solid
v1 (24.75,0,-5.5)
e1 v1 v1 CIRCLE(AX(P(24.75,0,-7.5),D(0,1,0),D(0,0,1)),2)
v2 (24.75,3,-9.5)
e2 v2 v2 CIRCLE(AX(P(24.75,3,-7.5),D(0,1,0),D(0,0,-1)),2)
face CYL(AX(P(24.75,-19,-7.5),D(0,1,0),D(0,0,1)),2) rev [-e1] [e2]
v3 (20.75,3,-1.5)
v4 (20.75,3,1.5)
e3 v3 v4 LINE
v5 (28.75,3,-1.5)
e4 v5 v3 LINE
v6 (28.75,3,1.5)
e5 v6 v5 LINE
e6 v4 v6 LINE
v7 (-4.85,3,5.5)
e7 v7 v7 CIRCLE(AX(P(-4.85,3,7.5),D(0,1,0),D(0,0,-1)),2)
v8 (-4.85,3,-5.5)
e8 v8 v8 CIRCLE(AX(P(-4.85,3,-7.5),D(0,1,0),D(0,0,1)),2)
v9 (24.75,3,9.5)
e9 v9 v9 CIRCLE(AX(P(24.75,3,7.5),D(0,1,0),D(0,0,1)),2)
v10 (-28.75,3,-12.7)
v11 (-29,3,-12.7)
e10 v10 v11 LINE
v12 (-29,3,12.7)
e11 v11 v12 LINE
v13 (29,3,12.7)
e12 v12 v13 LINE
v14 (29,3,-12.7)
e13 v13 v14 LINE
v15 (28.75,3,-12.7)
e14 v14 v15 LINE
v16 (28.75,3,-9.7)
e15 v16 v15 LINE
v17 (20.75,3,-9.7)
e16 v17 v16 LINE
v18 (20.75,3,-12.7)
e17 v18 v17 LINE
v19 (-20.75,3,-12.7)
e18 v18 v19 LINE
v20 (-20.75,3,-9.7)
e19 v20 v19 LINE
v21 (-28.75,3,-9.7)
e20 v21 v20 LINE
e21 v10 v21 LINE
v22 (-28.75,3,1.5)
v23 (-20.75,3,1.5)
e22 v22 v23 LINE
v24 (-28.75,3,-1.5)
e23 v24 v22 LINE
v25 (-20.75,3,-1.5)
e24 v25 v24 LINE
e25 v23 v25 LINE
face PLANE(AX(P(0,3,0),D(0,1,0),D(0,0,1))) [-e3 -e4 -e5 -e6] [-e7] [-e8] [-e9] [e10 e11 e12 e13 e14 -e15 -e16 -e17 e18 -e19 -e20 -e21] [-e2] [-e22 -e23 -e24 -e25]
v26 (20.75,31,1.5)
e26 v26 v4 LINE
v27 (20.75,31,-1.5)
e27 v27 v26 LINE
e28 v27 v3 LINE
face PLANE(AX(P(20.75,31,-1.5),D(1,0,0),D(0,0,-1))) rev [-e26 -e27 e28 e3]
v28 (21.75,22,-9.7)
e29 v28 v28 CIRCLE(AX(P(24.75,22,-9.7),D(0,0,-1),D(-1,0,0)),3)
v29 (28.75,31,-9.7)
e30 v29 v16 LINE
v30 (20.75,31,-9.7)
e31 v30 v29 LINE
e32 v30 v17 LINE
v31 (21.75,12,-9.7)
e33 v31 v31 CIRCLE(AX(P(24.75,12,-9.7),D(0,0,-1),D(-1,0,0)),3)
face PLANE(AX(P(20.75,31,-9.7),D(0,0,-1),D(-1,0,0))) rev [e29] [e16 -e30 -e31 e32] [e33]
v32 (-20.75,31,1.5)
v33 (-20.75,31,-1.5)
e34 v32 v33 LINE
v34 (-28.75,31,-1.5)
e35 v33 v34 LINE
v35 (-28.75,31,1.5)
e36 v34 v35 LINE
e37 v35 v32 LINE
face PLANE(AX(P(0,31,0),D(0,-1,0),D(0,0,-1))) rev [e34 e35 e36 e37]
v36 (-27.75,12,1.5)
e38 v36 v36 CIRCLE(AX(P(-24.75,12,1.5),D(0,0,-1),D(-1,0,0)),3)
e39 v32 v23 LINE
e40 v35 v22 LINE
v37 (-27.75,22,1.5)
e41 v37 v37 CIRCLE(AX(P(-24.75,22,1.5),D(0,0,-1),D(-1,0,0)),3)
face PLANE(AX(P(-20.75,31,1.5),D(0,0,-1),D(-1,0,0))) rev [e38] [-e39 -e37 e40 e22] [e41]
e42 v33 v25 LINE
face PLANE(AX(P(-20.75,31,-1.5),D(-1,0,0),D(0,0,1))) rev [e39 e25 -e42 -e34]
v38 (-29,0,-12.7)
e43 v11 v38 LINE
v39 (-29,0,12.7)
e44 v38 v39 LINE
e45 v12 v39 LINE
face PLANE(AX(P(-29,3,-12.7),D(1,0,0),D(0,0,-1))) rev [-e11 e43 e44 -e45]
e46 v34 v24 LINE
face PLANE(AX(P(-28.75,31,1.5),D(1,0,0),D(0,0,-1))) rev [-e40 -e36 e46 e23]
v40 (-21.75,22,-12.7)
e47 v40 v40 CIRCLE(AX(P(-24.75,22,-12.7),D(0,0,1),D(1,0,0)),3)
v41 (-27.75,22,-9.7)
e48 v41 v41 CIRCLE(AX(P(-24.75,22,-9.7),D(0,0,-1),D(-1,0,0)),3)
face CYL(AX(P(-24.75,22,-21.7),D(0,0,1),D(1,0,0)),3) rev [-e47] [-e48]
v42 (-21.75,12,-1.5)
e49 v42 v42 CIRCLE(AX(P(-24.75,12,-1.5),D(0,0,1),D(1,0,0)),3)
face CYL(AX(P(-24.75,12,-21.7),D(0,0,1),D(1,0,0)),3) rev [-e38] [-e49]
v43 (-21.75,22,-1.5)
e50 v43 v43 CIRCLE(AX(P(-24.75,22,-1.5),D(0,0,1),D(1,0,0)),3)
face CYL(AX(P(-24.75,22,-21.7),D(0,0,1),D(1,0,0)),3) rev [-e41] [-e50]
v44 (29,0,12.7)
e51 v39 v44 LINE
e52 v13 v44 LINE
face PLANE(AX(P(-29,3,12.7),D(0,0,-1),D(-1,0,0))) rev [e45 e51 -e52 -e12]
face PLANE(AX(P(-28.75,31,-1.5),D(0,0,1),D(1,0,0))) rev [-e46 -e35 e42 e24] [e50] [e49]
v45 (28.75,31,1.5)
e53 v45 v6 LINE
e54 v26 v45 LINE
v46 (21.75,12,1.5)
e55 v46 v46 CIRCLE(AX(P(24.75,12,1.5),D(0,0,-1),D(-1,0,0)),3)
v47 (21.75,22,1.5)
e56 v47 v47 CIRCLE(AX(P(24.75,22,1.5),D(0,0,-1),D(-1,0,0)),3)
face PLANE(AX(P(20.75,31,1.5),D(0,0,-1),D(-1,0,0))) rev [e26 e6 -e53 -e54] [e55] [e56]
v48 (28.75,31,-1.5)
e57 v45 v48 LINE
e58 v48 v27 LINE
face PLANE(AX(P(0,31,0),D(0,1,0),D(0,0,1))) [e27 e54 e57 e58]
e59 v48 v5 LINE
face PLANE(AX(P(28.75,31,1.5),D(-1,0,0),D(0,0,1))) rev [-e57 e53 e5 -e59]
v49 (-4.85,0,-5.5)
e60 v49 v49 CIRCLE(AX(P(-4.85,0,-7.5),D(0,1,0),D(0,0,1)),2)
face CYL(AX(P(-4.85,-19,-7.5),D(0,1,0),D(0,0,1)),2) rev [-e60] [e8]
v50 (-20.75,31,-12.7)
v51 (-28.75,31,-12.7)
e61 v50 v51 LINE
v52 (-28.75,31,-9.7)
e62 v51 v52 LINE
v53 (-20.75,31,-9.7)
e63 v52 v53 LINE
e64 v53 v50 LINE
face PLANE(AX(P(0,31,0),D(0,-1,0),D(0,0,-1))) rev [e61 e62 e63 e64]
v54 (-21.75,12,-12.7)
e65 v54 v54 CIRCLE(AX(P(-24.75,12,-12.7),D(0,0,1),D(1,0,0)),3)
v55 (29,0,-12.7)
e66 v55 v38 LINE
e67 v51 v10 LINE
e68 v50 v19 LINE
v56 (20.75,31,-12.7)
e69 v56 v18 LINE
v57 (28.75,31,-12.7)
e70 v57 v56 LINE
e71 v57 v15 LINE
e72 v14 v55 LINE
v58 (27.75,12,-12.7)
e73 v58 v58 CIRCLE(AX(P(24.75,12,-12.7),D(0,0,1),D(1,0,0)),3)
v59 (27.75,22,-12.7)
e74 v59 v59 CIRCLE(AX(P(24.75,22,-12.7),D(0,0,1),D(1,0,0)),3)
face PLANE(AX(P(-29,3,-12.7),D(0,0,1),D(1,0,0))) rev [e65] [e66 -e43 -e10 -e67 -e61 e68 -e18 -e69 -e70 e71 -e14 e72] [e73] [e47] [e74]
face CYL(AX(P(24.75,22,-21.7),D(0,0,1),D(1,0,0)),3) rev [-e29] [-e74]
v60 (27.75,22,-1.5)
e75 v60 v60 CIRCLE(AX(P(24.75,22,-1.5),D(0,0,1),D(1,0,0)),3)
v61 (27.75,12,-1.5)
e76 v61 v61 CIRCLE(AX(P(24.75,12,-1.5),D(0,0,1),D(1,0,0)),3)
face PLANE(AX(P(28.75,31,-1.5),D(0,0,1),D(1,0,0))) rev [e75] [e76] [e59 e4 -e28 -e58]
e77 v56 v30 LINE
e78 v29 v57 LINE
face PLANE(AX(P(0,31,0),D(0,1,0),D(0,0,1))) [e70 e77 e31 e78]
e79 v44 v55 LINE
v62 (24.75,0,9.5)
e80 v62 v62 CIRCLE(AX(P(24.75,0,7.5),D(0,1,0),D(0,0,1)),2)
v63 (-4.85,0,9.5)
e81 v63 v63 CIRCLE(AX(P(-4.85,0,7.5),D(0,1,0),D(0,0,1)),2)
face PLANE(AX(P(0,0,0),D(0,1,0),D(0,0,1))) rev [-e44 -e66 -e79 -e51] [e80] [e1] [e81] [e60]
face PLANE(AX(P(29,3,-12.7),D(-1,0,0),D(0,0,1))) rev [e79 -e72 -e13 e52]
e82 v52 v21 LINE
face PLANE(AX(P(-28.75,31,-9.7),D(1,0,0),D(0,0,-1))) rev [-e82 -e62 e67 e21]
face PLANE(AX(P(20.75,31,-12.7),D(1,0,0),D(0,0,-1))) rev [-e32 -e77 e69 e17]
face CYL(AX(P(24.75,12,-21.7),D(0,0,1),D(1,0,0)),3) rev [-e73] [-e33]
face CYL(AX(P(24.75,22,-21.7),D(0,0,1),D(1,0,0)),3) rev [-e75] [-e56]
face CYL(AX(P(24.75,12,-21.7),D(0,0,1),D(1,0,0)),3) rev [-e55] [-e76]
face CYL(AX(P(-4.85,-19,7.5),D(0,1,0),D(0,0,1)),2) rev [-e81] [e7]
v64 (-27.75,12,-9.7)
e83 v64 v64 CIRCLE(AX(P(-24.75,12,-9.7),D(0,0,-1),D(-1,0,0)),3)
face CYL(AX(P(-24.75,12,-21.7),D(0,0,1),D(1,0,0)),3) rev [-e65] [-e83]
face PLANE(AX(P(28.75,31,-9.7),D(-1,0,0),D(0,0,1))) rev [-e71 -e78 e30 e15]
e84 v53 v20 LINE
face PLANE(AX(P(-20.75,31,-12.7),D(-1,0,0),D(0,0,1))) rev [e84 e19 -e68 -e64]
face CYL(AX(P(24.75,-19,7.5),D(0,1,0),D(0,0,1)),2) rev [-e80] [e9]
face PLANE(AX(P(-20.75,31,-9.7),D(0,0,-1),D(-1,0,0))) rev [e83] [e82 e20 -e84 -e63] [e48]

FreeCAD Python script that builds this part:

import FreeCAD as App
import Part
import Sketcher
Q = App.Units.Quantity


def add_polygon(sketch, points):
    """Adds a closed chain of lines whose ends are joined by coincident constraints."""
    first, n = sketch.GeometryCount, len(points)
    for a, b in zip(points, points[1:] + points[:1]):
        sketch.addGeometry(Part.LineSegment(App.Vector(*a, 0), App.Vector(*b, 0)), False)
    for i in range(n):
        sketch.addConstraint(Sketcher.Constraint("Coincident", first + i, 2, first + (i + 1) % n, 1))

doc = App.newDocument("Part")
body = doc.addObject("PartDesign::Body", "Body")

sketch1 = body.newObject("Sketcher::SketchObject", "Sketch")
sketch1.AttachmentSupport = (doc.getObject("XZ_Plane"), [""])
sketch1.MapMode = "FlatFace"
add_polygon(sketch1, [(-29, -13), (-29, 13), (29, 13), (29, -13)])
sketch1.addConstraint(Sketcher.Constraint("Vertical", 0))
sketch1.addConstraint(Sketcher.Constraint("Horizontal", 1))
sketch1.addConstraint(Sketcher.Constraint("Vertical", 2))
sketch1.addConstraint(Sketcher.Constraint("Horizontal", 3))
sketch1.addConstraint(Sketcher.Constraint("Symmetric", 0, 2, 2, 2, -1, 1))
sketch1.addConstraint(Sketcher.Constraint("DistanceX", 1, 1, 1, 2, Q("58 mm")))
sketch1.addConstraint(Sketcher.Constraint("DistanceY", 0, 1, 0, 2, Q("25.4 mm")))
pad1 = body.newObject("PartDesign::Pad", "Pad")
pad1.Profile = sketch1
pad1.Length = 3
pad1.Reversed = True

sketch2 = body.newObject("Sketcher::SketchObject", "Sketch001")
sketch2.AttachmentSupport = (doc.getObject("XZ_Plane"), [""])
sketch2.MapMode = "FlatFace"
sketch2.AttachmentOffset = App.Placement(App.Vector(0, 0, -3), App.Rotation())
add_polygon(sketch2, [(-28.8, -12.7), (-28.8, -9.7), (-20.8, -9.7), (-20.8, -12.7)])
add_polygon(sketch2, [(20.8, -12.7), (20.8, -9.7), (28.8, -9.7), (28.8, -12.7)])
add_polygon(sketch2, [(-28.8, -1.5), (-28.8, 1.5), (-20.8, 1.5), (-20.8, -1.5)])
add_polygon(sketch2, [(20.8, -1.5), (20.8, 1.5), (28.8, 1.5), (28.8, -1.5)])
sketch2.addConstraint(Sketcher.Constraint("Vertical", 0))
sketch2.addConstraint(Sketcher.Constraint("Horizontal", 1))
sketch2.addConstraint(Sketcher.Constraint("Vertical", 2))
sketch2.addConstraint(Sketcher.Constraint("Horizontal", 3))
sketch2.addConstraint(Sketcher.Constraint("Vertical", 4))
sketch2.addConstraint(Sketcher.Constraint("Horizontal", 5))
sketch2.addConstraint(Sketcher.Constraint("Vertical", 6))
sketch2.addConstraint(Sketcher.Constraint("Horizontal", 7))
sketch2.addConstraint(Sketcher.Constraint("Vertical", 8))
sketch2.addConstraint(Sketcher.Constraint("Horizontal", 9))
sketch2.addConstraint(Sketcher.Constraint("Vertical", 10))
sketch2.addConstraint(Sketcher.Constraint("Horizontal", 11))
sketch2.addConstraint(Sketcher.Constraint("Vertical", 12))
sketch2.addConstraint(Sketcher.Constraint("Horizontal", 13))
sketch2.addConstraint(Sketcher.Constraint("Vertical", 14))
sketch2.addConstraint(Sketcher.Constraint("Horizontal", 15))
sketch2.addConstraint(Sketcher.Constraint("Symmetric", 10, 2, 12, 2, -1, 1))
sketch2.addConstraint(Sketcher.Constraint("Symmetric", 8, 2, 14, 2, -1, 1))
sketch2.addConstraint(Sketcher.Constraint("Symmetric", 1, 2, 4, 2, -2))
sketch2.addConstraint(Sketcher.Constraint("Symmetric", 3, 2, 6, 2, -2))
sketch2.addConstraint(Sketcher.Constraint("Horizontal", 9, 2, 12, 2))
sketch2.addConstraint(Sketcher.Constraint("Vertical", 3, 2, 8, 2))
sketch2.addConstraint(Sketcher.Constraint("Vertical", 2, 2, 9, 2))
sketch2.addConstraint(Sketcher.Constraint("Equal", 6, 8))
sketch2.addConstraint(Sketcher.Constraint("DistanceX", 1, 1, 1, 2, Q("8 mm")))
sketch2.addConstraint(Sketcher.Constraint("DistanceY", 0, 1, 0, 2, Q("3 mm")))
sketch2.addConstraint(Sketcher.Constraint("DistanceY", 0, 2, -1, 1, Q("9.7 mm")))
sketch2.addConstraint(Sketcher.Constraint("DistanceX", 1, 2, 4, 2, Q("41.5 mm")))
pad2 = body.newObject("PartDesign::Pad", "Pad001")
pad2.Profile = sketch2
pad2.Length = 28
pad2.Reversed = True

sketch3 = body.newObject("Sketcher::SketchObject", "Sketch002")
sketch3.AttachmentSupport = (doc.getObject("XY_Plane"), [""])
sketch3.MapMode = "FlatFace"
sketch3.AttachmentOffset = App.Placement(App.Vector(0, 0, -9.7), App.Rotation())
sketch3.addGeometry(Part.Circle(App.Vector(-24.8, 12, 0), App.Vector(0, 0, 1), 3), False)
sketch3.addGeometry(Part.Circle(App.Vector(-24.8, 22, 0), App.Vector(0, 0, 1), 3), False)
sketch3.addGeometry(Part.Circle(App.Vector(24.8, 12, 0), App.Vector(0, 0, 1), 3), False)
sketch3.addGeometry(Part.Circle(App.Vector(24.8, 22, 0), App.Vector(0, 0, 1), 3), False)
sketch3.addConstraint(Sketcher.Constraint("Equal", 0, 1))
sketch3.addConstraint(Sketcher.Constraint("Equal", 1, 2))
sketch3.addConstraint(Sketcher.Constraint("Equal", 2, 3))
sketch3.addConstraint(Sketcher.Constraint("Symmetric", 0, 3, 2, 3, -2))
sketch3.addConstraint(Sketcher.Constraint("Symmetric", 1, 3, 3, 3, -2))
sketch3.addConstraint(Sketcher.Constraint("Vertical", 0, 3, 1, 3))
sketch3.addConstraint(Sketcher.Constraint("Diameter", 0, Q("6 mm")))
sketch3.addConstraint(Sketcher.Constraint("DistanceY", -1, 1, 0, 3, Q("12 mm")))
sketch3.addConstraint(Sketcher.Constraint("DistanceY", -1, 1, 1, 3, Q("22 mm")))
sketch3.addConstraint(Sketcher.Constraint("DistanceX", 0, 3, 2, 3, Q("49.5 mm")))
pocket1 = body.newObject("PartDesign::Pocket", "Pocket")
pocket1.Profile = sketch3
pocket1.Length = 24
pocket1.Midplane = True

sketch4 = body.newObject("Sketcher::SketchObject", "Sketch003")
sketch4.AttachmentSupport = (doc.getObject("XZ_Plane"), [""])
sketch4.MapMode = "FlatFace"
sketch4.AttachmentOffset = App.Placement(App.Vector(0, 0, -3), App.Rotation())
sketch4.addGeometry(Part.Circle(App.Vector(24.8, 7.5, 0), App.Vector(0, 0, 1), 2), False)
sketch4.addGeometry(Part.Circle(App.Vector(24.8, -7.5, 0), App.Vector(0, 0, 1), 2), False)
sketch4.addGeometry(Part.Circle(App.Vector(-4.8, -7.5, 0), App.Vector(0, 0, 1), 2), False)
sketch4.addGeometry(Part.Circle(App.Vector(-4.8, 7.5, 0), App.Vector(0, 0, 1), 2), False)
sketch4.addConstraint(Sketcher.Constraint("Equal", 0, 1))
sketch4.addConstraint(Sketcher.Constraint("Equal", 1, 2))
sketch4.addConstraint(Sketcher.Constraint("Equal", 2, 3))
sketch4.addConstraint(Sketcher.Constraint("Symmetric", 0, 3, 1, 3, -1))
sketch4.addConstraint(Sketcher.Constraint("Symmetric", 2, 3, 3, 3, -1))
sketch4.addConstraint(Sketcher.Constraint("Horizontal", 1, 3, 2, 3))
sketch4.addConstraint(Sketcher.Constraint("Diameter", 0, Q("4 mm")))
sketch4.addConstraint(Sketcher.Constraint("DistanceY", 1, 3, 0, 3, Q("15 mm")))
sketch4.addConstraint(Sketcher.Constraint("DistanceX", 2, 3, 1, 3, Q("29.6 mm")))
sketch4.addConstraint(Sketcher.Constraint("DistanceX", -1, 1, 0, 3, Q("24.75 mm")))
pocket2 = body.newObject("PartDesign::Pocket", "Pocket001")
pocket2.Profile = sketch4
pocket2.Length = 22
pocket2.Reversed = True

doc.recompute()
